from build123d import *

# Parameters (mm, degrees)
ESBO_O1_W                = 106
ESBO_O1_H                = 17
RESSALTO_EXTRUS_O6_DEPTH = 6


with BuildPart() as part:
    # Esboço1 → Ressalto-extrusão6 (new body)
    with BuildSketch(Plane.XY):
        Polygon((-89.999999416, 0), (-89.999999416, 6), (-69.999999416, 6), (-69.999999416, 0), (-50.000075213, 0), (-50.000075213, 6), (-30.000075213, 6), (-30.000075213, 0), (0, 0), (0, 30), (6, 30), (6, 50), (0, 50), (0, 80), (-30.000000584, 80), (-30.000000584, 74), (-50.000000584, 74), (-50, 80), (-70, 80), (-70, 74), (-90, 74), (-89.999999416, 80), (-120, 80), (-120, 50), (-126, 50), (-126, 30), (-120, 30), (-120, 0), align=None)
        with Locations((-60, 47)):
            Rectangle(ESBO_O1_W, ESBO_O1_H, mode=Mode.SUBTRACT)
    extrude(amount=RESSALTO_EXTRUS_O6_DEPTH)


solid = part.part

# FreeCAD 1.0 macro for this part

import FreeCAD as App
import Part
import Sketcher
Q = App.Units.Quantity

doc = App.newDocument("Part")
body = doc.addObject("PartDesign::Body", "Body")

# Sketch on XY plane
sketch1 = body.newObject("Sketcher::SketchObject", "Sketch")
sketch1.AttachmentSupport = (doc.getObject("XY_Plane"), [""])
sketch1.MapMode = "FlatFace"
sketch1.addGeometry(Part.LineSegment(App.Vector(-90, 0, 0), App.Vector(-90, 6, 0)), False)
sketch1.addGeometry(Part.LineSegment(App.Vector(-90, 6, 0), App.Vector(-70, 6, 0)), False)
sketch1.addGeometry(Part.LineSegment(App.Vector(-70, 6, 0), App.Vector(-70, 0, 0)), False)
sketch1.addGeometry(Part.LineSegment(App.Vector(-70, 0, 0), App.Vector(-50, 0, 0)), False)
sketch1.addGeometry(Part.LineSegment(App.Vector(-50, 0, 0), App.Vector(-50, 6, 0)), False)
sketch1.addGeometry(Part.LineSegment(App.Vector(-50, 6, 0), App.Vector(-30, 6, 0)), False)
sketch1.addGeometry(Part.LineSegment(App.Vector(-30, 6, 0), App.Vector(-30, 0, 0)), False)
sketch1.addGeometry(Part.LineSegment(App.Vector(-30, 0, 0), App.Vector(0, 0, 0)), False)
sketch1.addGeometry(Part.LineSegment(App.Vector(0, 0, 0), App.Vector(0, 30, 0)), False)
sketch1.addGeometry(Part.LineSegment(App.Vector(0, 30, 0), App.Vector(6, 30, 0)), False)
sketch1.addGeometry(Part.LineSegment(App.Vector(6, 30, 0), App.Vector(6, 50, 0)), False)
sketch1.addGeometry(Part.LineSegment(App.Vector(6, 50, 0), App.Vector(0, 50, 0)), False)
sketch1.addGeometry(Part.LineSegment(App.Vector(0, 50, 0), App.Vector(0, 80, 0)), False)
sketch1.addGeometry(Part.LineSegment(App.Vector(0, 80, 0), App.Vector(-30, 80, 0)), False)
sketch1.addGeometry(Part.LineSegment(App.Vector(-30, 80, 0), App.Vector(-30, 74, 0)), False)
sketch1.addGeometry(Part.LineSegment(App.Vector(-30, 74, 0), App.Vector(-50, 74, 0)), False)
sketch1.addGeometry(Part.LineSegment(App.Vector(-50, 74, 0), App.Vector(-50, 80, 0)), False)
sketch1.addGeometry(Part.LineSegment(App.Vector(-50, 80, 0), App.Vector(-70, 80, 0)), False)
sketch1.addGeometry(Part.LineSegment(App.Vector(-70, 80, 0), App.Vector(-70, 74, 0)), False)
sketch1.addGeometry(Part.LineSegment(App.Vector(-70, 74, 0), App.Vector(-90, 74, 0)), False)
sketch1.addGeometry(Part.LineSegment(App.Vector(-90, 74, 0), App.Vector(-90, 80, 0)), False)
sketch1.addGeometry(Part.LineSegment(App.Vector(-90, 80, 0), App.Vector(-120, 80, 0)), False)
sketch1.addGeometry(Part.LineSegment(App.Vector(-120, 80, 0), App.Vector(-120, 50, 0)), False)
sketch1.addGeometry(Part.LineSegment(App.Vector(-120, 50, 0), App.Vector(-126, 50, 0)), False)
sketch1.addGeometry(Part.LineSegment(App.Vector(-126, 50, 0), App.Vector(-126, 30, 0)), False)
sketch1.addGeometry(Part.LineSegment(App.Vector(-126, 30, 0), App.Vector(-120, 30, 0)), False)
sketch1.addGeometry(Part.LineSegment(App.Vector(-120, 30, 0), App.Vector(-120, 0, 0)), False)
sketch1.addGeometry(Part.LineSegment(App.Vector(-120, 0, 0), App.Vector(-90, 0, 0)), False)
sketch1.addGeometry(Part.LineSegment(App.Vector(-7, 38, 0), App.Vector(-113, 38, 0)), False)
sketch1.addGeometry(Part.LineSegment(App.Vector(-113, 38, 0), App.Vector(-113, 56, 0)), False)
sketch1.addGeometry(Part.LineSegment(App.Vector(-113, 56, 0), App.Vector(-7, 56, 0)), False)
sketch1.addGeometry(Part.LineSegment(App.Vector(-7, 56, 0), App.Vector(-7, 38, 0)), False)
sketch1.addConstraint(Sketcher.Constraint("Coincident", 0, 2, 1, 1))
sketch1.addConstraint(Sketcher.Constraint("Coincident", 1, 2, 2, 1))
sketch1.addConstraint(Sketcher.Constraint("Coincident", 2, 2, 3, 1))
sketch1.addConstraint(Sketcher.Constraint("Coincident", 3, 2, 4, 1))
sketch1.addConstraint(Sketcher.Constraint("Coincident", 4, 2, 5, 1))
sketch1.addConstraint(Sketcher.Constraint("Coincident", 5, 2, 6, 1))
sketch1.addConstraint(Sketcher.Constraint("Coincident", 6, 2, 7, 1))
sketch1.addConstraint(Sketcher.Constraint("Coincident", 7, 2, 8, 1))
sketch1.addConstraint(Sketcher.Constraint("Coincident", 8, 2, 9, 1))
sketch1.addConstraint(Sketcher.Constraint("Coincident", 9, 2, 10, 1))
sketch1.addConstraint(Sketcher.Constraint("Coincident", 10, 2, 11, 1))
sketch1.addConstraint(Sketcher.Constraint("Coincident", 11, 2, 12, 1))
sketch1.addConstraint(Sketcher.Constraint("Coincident", 12, 2, 13, 1))
sketch1.addConstraint(Sketcher.Constraint("Coincident", 13, 2, 14, 1))
sketch1.addConstraint(Sketcher.Constraint("Coincident", 14, 2, 15, 1))
sketch1.addConstraint(Sketcher.Constraint("Coincident", 15, 2, 16, 1))
sketch1.addConstraint(Sketcher.Constraint("Coincident", 16, 2, 17, 1))
sketch1.addConstraint(Sketcher.Constraint("Coincident", 17, 2, 18, 1))
sketch1.addConstraint(Sketcher.Constraint("Coincident", 18, 2, 19, 1))
sketch1.addConstraint(Sketcher.Constraint("Coincident", 19, 2, 20, 1))
sketch1.addConstraint(Sketcher.Constraint("Coincident", 20, 2, 21, 1))
sketch1.addConstraint(Sketcher.Constraint("Coincident", 21, 2, 22, 1))
sketch1.addConstraint(Sketcher.Constraint("Coincident", 22, 2, 23, 1))
sketch1.addConstraint(Sketcher.Constraint("Coincident", 23, 2, 24, 1))
sketch1.addConstraint(Sketcher.Constraint("Coincident", 24, 2, 25, 1))
sketch1.addConstraint(Sketcher.Constraint("Coincident", 25, 2, 26, 1))
sketch1.addConstraint(Sketcher.Constraint("Coincident", 26, 2, 27, 1))
sketch1.addConstraint(Sketcher.Constraint("Coincident", 27, 2, 0, 1))
sketch1.addConstraint(Sketcher.Constraint("Coincident", 28, 2, 29, 1))
sketch1.addConstraint(Sketcher.Constraint("Coincident", 29, 2, 30, 1))
sketch1.addConstraint(Sketcher.Constraint("Coincident", 30, 2, 31, 1))
sketch1.addConstraint(Sketcher.Constraint("Coincident", 31, 2, 28, 1))
sketch1.addConstraint(Sketcher.Constraint("Vertical", 0))
sketch1.addConstraint(Sketcher.Constraint("Horizontal", 1))
sketch1.addConstraint(Sketcher.Constraint("Vertical", 2))
sketch1.addConstraint(Sketcher.Constraint("Horizontal", 3))
sketch1.addConstraint(Sketcher.Constraint("Vertical", 4))
sketch1.addConstraint(Sketcher.Constraint("Horizontal", 5))
sketch1.addConstraint(Sketcher.Constraint("Vertical", 6))
sketch1.addConstraint(Sketcher.Constraint("Horizontal", 7))
sketch1.addConstraint(Sketcher.Constraint("Vertical", 8))
sketch1.addConstraint(Sketcher.Constraint("Horizontal", 9))
sketch1.addConstraint(Sketcher.Constraint("Vertical", 10))
sketch1.addConstraint(Sketcher.Constraint("Horizontal", 11))
sketch1.addConstraint(Sketcher.Constraint("Vertical", 12))
sketch1.addConstraint(Sketcher.Constraint("Horizontal", 13))
sketch1.addConstraint(Sketcher.Constraint("Vertical", 14))
sketch1.addConstraint(Sketcher.Constraint("Horizontal", 15))
sketch1.addConstraint(Sketcher.Constraint("Vertical", 16))
sketch1.addConstraint(Sketcher.Constraint("Horizontal", 17))
sketch1.addConstraint(Sketcher.Constraint("Vertical", 18))
sketch1.addConstraint(Sketcher.Constraint("Horizontal", 19))
sketch1.addConstraint(Sketcher.Constraint("Vertical", 20))
sketch1.addConstraint(Sketcher.Constraint("Horizontal", 21))
sketch1.addConstraint(Sketcher.Constraint("Vertical", 22))
sketch1.addConstraint(Sketcher.Constraint("Horizontal", 23))
sketch1.addConstraint(Sketcher.Constraint("Vertical", 24))
sketch1.addConstraint(Sketcher.Constraint("Horizontal", 25))
sketch1.addConstraint(Sketcher.Constraint("Vertical", 26))
sketch1.addConstraint(Sketcher.Constraint("Horizontal", 27))
sketch1.addConstraint(Sketcher.Constraint("Horizontal", 28))
sketch1.addConstraint(Sketcher.Constraint("Vertical", 29))
sketch1.addConstraint(Sketcher.Constraint("Horizontal", 30))
sketch1.addConstraint(Sketcher.Constraint("Vertical", 31))
sketch1.addConstraint(Sketcher.Constraint("Coincident", 7, 2, -1, 1))
sketch1.addConstraint(Sketcher.Constraint("PointOnObject", 2, 2, -1))
sketch1.addConstraint(Sketcher.Constraint("PointOnObject", 11, 2, -2))
sketch1.addConstraint(Sketcher.Constraint("PointOnObject", 26, 2, -1))
sketch1.addConstraint(Sketcher.Constraint("Horizontal", 1, 2, 4, 2))
sketch1.addConstraint(Sketcher.Constraint("Horizontal", 13, 2, 16, 2))
sketch1.addConstraint(Sketcher.Constraint("Horizontal", 15, 2, 18, 2))
sketch1.addConstraint(Sketcher.Constraint("Horizontal", 17, 2, 20, 2))
sketch1.addConstraint(Sketcher.Constraint("Horizontal", 11, 2, 22, 2))
sketch1.addConstraint(Sketcher.Constraint("Horizontal", 9, 2, 24, 2))
sketch1.addConstraint(Sketcher.Constraint("Vertical", 2, 2, 17, 2))
sketch1.addConstraint(Sketcher.Constraint("Vertical", 0, 2, 19, 2))
sketch1.addConstraint(Sketcher.Constraint("Vertical", 22, 2, 25, 2))
sketch1.addConstraint(Sketcher.Constraint("Equal", 1, 5))
sketch1.addConstraint(Sketcher.Constraint("Equal", 5, 15))
sketch1.addConstraint(Sketcher.Constraint("Equal", 15, 17))
sketch1.addConstraint(Sketcher.Constraint("Equal", 13, 21))
sketch1.addConstraint(Sketcher.Constraint("Equal", 11, 23))
sketch1.addConstraint(Sketcher.Constraint("Equal", 25, 0))
sketch1.addConstraint(Sketcher.Constraint("Equal", 27, 8))
sketch1.addConstraint(Sketcher.Constraint("Equal", 19, 10))
sketch1.addConstraint(Sketcher.Constraint("Equal", 8, 12))
sketch1.addConstraint(Sketcher.Constraint("Equal", 6, 14))
sketch1.addConstraint(Sketcher.Constraint("DistanceX", 1, 1, 1, 2, Q("20 mm")))
sketch1.addConstraint(Sketcher.Constraint("DistanceX", 9, 1, 9, 2, Q("6 mm")))
sketch1.addConstraint(Sketcher.Constraint("DistanceX", 13, 2, 13, 1, Q("30.000001 mm")))
sketch1.addConstraint(Sketcher.Constraint("DistanceX", 28, 2, 28, 1, Q("106 mm")))
sketch1.addConstraint(Sketcher.Constraint("DistanceY", 29, 1, 29, 2, Q("17 mm")))
sketch1.addConstraint(Sketcher.Constraint("DistanceX", 28, 2, -1, 1, Q("113 mm")))
sketch1.addConstraint(Sketcher.Constraint("DistanceY", -1, 1, 28, 2, Q("38.5 mm")))
sketch1.addConstraint(Sketcher.Constraint("DistanceX", 3, 1, 3, 2, Q("19.999924 mm")))
pad1 = body.newObject("PartDesign::Pad", "Pad")
pad1.Profile = sketch1
pad1.Length = 6

doc.recompute()
